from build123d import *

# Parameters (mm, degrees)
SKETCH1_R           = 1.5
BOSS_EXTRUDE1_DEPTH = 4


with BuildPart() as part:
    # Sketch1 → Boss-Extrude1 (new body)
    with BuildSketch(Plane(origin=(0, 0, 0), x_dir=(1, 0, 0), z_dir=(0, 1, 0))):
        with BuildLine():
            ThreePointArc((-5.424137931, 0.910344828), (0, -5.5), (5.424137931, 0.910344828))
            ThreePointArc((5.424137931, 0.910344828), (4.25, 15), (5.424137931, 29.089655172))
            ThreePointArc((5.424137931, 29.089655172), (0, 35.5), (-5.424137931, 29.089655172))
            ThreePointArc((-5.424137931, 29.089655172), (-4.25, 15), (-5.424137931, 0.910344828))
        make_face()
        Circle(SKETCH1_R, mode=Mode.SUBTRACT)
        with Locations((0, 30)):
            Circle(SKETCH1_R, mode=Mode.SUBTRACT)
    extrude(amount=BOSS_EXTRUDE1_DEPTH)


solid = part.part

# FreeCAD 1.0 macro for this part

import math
import FreeCAD as App
import Part
import Sketcher

doc = App.newDocument("Part")
body = doc.addObject("PartDesign::Body", "Body")

# Sketch on XZ plane
sketch1 = doc.addObject("Sketcher::SketchObject", "Sketch")
body.addObject(sketch1)
sketch1.AttachmentSupport = (doc.XZ_Plane, [""])
sketch1.MapMode = "FlatFace"
sketch1.addGeometry(Part.ArcOfCircle(Part.Circle(App.Vector(0, 0, 0), App.Vector(0, 0, 1), 5.5), math.radians(-10), math.radians(190)), False)
sketch1.addGeometry(Part.ArcOfCircle(Part.Circle(App.Vector(89.4, -15, 0), App.Vector(0, 0, 1), 85.1), math.radians(170.47), math.radians(189.53)), False)
sketch1.addGeometry(Part.ArcOfCircle(Part.Circle(App.Vector(0, -30, 0), App.Vector(0, 0, 1), 5.5), math.radians(170), math.radians(370)), False)
sketch1.addGeometry(Part.ArcOfCircle(Part.Circle(App.Vector(-89.4, -15, 0), App.Vector(0, 0, 1), 85.1), math.radians(-9.53), math.radians(9.53)), False)
sketch1.addGeometry(Part.Circle(App.Vector(0, 0, 0), App.Vector(0, 0, 1), 1.5), False)
sketch1.addGeometry(Part.Circle(App.Vector(0, -30, 0), App.Vector(0, 0, 1), 1.5), False)
sketch1.addConstraint(Sketcher.Constraint("Tangent", 0, 1, 1, 1))
sketch1.addConstraint(Sketcher.Constraint("Tangent", 1, 2, 2, 2))
sketch1.addConstraint(Sketcher.Constraint("Tangent", 2, 1, 3, 1))
sketch1.addConstraint(Sketcher.Constraint("Tangent", 3, 2, 0, 2))
sketch1.addConstraint(Sketcher.Constraint("Coincident", 0, 3, -1, 1))
sketch1.addConstraint(Sketcher.Constraint("Coincident", 4, 3, -1, 1))
sketch1.addConstraint(Sketcher.Constraint("Coincident", 5, 3, 2, 3))
sketch1.addConstraint(Sketcher.Constraint("Equal", 0, 2))
sketch1.addConstraint(Sketcher.Constraint("Equal", 1, 3))
sketch1.addConstraint(Sketcher.Constraint("Equal", 4, 5))
sketch1.addConstraint(Sketcher.Constraint("PointOnObject", 2, 3, -2))
sketch1.addConstraint(Sketcher.Constraint("Diameter", 4, 3.0))
sketch1.addConstraint(Sketcher.Constraint("Radius", 0, 5.5))
sketch1.addConstraint(Sketcher.Constraint("DistanceY", 1, 3, -1, 1, 15.0))
sketch1.addConstraint(Sketcher.Constraint("Radius", 1, 85.125))
pad1 = doc.addObject("PartDesign::Pad", "Pad")
body.addObject(pad1)
pad1.Profile = sketch1
pad1.Length = 4
pad1.Reversed = True

doc.recompute()
